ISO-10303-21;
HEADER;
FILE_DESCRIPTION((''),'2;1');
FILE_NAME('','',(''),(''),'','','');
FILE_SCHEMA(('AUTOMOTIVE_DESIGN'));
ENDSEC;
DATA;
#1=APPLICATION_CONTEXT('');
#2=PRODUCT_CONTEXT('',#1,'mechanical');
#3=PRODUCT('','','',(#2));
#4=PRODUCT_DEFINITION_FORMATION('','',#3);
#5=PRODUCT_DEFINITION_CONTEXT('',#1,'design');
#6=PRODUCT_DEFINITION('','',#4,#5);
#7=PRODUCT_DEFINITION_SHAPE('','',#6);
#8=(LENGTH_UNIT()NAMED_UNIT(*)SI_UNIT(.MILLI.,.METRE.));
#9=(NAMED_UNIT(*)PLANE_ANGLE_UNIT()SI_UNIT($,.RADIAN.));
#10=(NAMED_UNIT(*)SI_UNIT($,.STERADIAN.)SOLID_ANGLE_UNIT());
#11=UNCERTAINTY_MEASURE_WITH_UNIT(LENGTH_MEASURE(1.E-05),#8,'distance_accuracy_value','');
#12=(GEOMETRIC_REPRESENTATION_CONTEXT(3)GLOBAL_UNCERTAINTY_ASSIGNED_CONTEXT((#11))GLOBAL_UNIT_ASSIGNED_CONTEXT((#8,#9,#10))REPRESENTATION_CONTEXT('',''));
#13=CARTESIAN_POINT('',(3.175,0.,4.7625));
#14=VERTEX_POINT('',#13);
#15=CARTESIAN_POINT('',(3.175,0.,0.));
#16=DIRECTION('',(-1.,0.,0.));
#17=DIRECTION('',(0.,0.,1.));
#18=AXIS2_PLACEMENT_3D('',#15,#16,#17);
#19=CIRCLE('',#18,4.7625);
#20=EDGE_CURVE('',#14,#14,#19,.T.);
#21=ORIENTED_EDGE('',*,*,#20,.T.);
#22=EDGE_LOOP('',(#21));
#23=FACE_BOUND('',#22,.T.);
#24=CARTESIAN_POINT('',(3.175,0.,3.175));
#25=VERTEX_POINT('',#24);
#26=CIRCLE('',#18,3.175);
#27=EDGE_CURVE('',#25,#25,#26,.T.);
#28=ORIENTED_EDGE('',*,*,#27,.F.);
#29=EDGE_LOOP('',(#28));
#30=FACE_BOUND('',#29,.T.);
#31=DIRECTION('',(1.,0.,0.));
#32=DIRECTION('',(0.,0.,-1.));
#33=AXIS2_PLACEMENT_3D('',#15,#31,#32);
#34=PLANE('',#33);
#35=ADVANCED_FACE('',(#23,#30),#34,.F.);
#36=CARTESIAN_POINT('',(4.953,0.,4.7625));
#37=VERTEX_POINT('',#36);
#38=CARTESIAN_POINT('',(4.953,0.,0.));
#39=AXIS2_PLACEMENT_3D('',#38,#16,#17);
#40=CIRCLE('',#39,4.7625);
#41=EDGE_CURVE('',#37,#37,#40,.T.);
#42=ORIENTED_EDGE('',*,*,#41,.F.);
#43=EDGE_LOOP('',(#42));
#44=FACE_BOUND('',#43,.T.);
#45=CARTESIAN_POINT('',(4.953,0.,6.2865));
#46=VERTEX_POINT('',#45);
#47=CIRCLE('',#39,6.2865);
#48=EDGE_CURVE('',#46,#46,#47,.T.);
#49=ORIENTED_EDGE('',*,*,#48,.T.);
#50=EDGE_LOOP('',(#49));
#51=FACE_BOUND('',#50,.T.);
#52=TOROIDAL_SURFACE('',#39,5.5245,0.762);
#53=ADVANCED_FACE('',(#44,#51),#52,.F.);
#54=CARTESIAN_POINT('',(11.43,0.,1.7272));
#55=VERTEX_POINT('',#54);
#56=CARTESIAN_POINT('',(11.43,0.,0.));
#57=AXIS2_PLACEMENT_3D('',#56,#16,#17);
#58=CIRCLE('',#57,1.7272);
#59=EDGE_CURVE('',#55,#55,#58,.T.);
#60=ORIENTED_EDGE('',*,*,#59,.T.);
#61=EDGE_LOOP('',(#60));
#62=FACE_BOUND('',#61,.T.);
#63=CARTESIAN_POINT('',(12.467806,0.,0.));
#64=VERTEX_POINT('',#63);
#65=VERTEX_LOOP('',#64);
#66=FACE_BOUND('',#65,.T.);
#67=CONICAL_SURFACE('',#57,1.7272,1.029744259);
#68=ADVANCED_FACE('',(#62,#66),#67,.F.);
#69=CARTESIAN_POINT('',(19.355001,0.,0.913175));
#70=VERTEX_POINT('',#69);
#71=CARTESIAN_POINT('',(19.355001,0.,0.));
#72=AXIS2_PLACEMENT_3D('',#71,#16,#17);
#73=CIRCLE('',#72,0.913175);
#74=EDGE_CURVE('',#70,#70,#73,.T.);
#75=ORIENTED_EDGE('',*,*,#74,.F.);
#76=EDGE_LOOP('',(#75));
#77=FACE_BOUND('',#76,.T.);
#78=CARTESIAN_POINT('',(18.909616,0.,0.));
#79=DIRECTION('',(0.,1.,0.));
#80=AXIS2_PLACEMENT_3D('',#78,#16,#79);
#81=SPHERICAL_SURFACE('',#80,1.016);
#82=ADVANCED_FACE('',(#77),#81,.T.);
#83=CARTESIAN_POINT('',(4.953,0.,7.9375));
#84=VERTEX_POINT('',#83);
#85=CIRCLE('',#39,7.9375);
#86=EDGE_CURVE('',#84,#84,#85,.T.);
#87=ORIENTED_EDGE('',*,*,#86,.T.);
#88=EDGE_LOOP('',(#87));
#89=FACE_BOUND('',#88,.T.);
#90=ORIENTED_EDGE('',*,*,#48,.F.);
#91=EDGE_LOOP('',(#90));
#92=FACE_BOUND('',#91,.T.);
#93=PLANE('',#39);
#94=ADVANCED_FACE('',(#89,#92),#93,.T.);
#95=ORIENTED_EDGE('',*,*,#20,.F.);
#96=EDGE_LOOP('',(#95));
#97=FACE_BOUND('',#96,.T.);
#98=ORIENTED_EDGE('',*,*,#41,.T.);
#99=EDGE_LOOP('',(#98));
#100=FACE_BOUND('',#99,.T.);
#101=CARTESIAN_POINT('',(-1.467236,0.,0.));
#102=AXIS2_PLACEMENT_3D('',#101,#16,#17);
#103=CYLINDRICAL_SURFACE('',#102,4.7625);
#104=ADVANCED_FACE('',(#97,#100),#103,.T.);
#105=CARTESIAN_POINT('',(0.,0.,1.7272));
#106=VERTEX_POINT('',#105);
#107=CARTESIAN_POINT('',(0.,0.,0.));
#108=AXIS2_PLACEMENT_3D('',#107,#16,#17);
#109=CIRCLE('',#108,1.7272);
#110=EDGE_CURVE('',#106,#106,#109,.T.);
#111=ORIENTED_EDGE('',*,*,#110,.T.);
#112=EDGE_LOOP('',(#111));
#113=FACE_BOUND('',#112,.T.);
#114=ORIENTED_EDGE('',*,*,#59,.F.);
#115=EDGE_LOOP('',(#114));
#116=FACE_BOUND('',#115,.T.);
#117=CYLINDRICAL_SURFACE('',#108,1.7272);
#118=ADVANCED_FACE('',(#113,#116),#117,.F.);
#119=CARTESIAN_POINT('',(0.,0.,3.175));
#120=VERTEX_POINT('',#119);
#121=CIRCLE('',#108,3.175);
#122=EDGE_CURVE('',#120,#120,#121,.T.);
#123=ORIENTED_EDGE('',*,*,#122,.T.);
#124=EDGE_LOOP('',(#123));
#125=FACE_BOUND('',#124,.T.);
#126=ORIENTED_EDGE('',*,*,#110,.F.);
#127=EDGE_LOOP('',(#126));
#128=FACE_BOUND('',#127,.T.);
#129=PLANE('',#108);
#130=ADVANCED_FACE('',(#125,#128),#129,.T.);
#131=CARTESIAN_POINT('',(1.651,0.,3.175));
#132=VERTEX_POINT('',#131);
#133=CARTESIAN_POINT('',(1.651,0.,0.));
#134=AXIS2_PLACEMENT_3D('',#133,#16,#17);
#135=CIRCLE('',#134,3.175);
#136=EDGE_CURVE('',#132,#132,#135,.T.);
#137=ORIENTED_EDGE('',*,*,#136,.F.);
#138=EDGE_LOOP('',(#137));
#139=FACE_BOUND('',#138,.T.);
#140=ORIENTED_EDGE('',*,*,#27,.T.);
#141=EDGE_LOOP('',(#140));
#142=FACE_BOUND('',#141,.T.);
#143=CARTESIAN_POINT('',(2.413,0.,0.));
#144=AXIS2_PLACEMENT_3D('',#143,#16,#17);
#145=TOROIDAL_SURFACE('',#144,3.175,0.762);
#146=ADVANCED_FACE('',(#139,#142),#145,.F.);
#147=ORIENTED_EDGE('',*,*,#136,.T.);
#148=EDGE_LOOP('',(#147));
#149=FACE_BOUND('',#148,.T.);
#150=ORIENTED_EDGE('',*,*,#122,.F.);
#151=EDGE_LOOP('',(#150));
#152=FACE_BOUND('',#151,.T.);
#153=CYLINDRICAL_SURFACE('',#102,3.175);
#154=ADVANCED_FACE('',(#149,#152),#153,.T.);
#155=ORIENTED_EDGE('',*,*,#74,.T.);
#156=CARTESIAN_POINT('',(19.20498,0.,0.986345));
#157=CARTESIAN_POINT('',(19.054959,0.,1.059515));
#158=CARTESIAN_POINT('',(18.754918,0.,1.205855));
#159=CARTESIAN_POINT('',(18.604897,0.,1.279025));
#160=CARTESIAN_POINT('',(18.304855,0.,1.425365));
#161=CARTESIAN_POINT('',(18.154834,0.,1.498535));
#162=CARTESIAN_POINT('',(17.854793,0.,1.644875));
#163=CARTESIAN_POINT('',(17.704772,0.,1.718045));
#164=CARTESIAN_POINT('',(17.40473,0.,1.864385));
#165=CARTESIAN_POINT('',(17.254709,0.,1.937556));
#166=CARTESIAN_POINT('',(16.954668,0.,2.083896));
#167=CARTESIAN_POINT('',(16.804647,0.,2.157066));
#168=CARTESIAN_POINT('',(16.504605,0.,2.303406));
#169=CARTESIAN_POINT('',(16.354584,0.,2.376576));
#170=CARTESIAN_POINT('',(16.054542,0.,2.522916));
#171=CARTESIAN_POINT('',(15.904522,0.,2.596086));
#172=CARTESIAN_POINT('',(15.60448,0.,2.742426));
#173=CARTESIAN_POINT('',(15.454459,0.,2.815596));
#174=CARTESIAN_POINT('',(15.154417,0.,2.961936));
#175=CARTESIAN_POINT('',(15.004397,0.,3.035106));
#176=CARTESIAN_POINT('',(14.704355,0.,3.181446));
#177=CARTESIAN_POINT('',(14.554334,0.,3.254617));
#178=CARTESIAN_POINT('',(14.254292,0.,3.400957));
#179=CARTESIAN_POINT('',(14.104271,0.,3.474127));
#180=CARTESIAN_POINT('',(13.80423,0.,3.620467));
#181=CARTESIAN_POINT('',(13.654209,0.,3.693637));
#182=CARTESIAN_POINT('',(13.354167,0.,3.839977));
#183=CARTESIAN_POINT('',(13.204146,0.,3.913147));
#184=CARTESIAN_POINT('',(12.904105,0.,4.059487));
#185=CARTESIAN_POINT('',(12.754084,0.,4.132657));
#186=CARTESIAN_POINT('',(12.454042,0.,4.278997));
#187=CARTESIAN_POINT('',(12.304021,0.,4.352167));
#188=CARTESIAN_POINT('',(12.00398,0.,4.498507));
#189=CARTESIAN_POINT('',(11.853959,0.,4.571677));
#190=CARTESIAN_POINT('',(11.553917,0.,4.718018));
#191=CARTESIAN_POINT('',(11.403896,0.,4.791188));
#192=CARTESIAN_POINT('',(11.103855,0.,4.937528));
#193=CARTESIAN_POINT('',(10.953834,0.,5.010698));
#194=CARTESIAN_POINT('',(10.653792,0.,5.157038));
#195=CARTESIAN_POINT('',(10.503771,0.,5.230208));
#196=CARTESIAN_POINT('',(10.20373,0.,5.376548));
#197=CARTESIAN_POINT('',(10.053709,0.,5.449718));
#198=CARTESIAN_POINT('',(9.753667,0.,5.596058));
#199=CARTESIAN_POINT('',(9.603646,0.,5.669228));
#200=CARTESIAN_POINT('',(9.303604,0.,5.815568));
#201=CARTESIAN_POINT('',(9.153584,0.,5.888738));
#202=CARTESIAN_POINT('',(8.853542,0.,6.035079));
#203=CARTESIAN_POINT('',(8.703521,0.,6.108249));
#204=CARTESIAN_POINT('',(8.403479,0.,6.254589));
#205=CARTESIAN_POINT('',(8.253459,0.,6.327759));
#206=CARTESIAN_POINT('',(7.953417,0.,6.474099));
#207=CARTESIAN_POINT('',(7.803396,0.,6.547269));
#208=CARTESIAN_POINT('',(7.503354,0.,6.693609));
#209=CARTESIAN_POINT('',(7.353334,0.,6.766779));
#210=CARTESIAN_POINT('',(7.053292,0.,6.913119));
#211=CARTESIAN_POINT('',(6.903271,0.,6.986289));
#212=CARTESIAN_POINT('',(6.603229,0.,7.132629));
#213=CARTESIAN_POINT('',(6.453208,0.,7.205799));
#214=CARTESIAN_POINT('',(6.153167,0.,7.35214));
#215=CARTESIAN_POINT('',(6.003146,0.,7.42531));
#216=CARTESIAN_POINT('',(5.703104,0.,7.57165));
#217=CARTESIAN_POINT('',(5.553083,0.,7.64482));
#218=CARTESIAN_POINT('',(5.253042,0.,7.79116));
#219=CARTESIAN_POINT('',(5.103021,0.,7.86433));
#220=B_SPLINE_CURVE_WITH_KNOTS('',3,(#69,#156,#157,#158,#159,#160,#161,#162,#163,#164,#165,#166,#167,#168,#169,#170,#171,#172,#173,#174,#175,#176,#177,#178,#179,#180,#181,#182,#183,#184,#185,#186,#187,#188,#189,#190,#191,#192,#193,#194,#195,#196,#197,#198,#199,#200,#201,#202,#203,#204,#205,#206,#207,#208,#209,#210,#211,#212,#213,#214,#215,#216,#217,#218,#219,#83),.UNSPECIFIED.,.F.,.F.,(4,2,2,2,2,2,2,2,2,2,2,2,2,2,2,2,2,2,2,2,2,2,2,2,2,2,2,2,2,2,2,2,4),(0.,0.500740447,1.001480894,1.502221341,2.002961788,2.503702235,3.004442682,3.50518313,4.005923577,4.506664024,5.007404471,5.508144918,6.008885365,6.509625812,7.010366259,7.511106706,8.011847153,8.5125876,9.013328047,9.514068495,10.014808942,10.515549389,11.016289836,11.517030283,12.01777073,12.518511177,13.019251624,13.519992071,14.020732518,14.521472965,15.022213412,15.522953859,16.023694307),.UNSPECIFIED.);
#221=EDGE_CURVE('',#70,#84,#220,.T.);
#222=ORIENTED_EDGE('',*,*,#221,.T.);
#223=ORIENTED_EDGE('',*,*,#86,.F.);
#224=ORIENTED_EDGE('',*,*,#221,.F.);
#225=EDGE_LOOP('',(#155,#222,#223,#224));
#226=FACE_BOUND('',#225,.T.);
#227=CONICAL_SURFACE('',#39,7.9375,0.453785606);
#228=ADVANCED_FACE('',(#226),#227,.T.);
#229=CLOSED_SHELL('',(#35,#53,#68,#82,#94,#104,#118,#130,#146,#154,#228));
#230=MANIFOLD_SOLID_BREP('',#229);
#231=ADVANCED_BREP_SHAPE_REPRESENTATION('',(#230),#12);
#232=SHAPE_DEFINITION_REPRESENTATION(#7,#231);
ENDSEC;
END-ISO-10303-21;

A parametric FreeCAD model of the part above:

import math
import FreeCAD as App
import Part
import Sketcher

V = App.Vector
Q = App.Units.Quantity

doc = App.newDocument("Part")
body = doc.addObject("PartDesign::Body", "Body")

# Sketch on XY plane
sketch1 = body.newObject("Sketcher::SketchObject", "Sketch")
sketch1.AttachmentSupport = (doc.getObject("XY_Plane"), [""])
sketch1.MapMode = "FlatFace"
sketch1.addGeometry([
    Part.LineSegment(V(0, 3.2, 0), V(0, 0, 0)),  # 0
    Part.LineSegment(V(0, 0, 0), V(19.9, 0, 0)),  # 1
    Part.ArcOfCircle(Part.Circle(V(18.9, 0, 0), V(0, 0, 1), 1), math.radians(0), math.radians(64)),  # 2
    Part.LineSegment(V(19.4, 0.9, 0), V(5, 7.9, 0)),  # 3
    Part.LineSegment(V(5, 7.9, 0), V(5, 6.3, 0)),  # 4
    Part.ArcOfCircle(Part.Circle(V(5, 5.5, 0), V(0, 0, 1), 0.8), math.radians(-90), math.radians(90)),  # 5
    Part.LineSegment(V(5, 4.8, 0), V(3.2, 4.8, 0)),  # 6
    Part.LineSegment(V(3.2, 4.8, 0), V(3.2, 3.2, 0)),  # 7
    Part.ArcOfCircle(Part.Circle(V(2.4, 3.2, 0), V(0, 0, 1), 0.8), math.radians(180), math.radians(360)),  # 8
    Part.LineSegment(V(1.7, 3.2, 0), V(0, 3.2, 0)),  # 9
], False)
sketch1.addConstraint([
    Sketcher.Constraint("Coincident", 0, 2, 1, 1),
    Sketcher.Constraint("Coincident", 1, 2, 2, 1),
    Sketcher.Constraint("Tangent", 2, 2, 3, 1),
    Sketcher.Constraint("Coincident", 3, 2, 4, 1),
    Sketcher.Constraint("Coincident", 4, 2, 5, 2),
    Sketcher.Constraint("Tangent", 5, 1, 6, 1),
    Sketcher.Constraint("Coincident", 6, 2, 7, 1),
    Sketcher.Constraint("Tangent", 7, 2, 8, 2),
    Sketcher.Constraint("Coincident", 8, 1, 9, 1),
    Sketcher.Constraint("Coincident", 9, 2, 0, 1),
    Sketcher.Constraint("Vertical", 0),
    Sketcher.Constraint("Horizontal", 1),
    Sketcher.Constraint("Vertical", 4),
    Sketcher.Constraint("Horizontal", 6),
    Sketcher.Constraint("Vertical", 7),
    Sketcher.Constraint("Horizontal", 9),
    Sketcher.Constraint("Coincident", 0, 2, -1, 1),
    Sketcher.Constraint("Equal", 5, 8),
    Sketcher.Constraint("PointOnObject", 2, 3, -1),
    Sketcher.Constraint("Horizontal", 7, 2, 8, 1),
    Sketcher.Constraint("Vertical", 5, 3, 3, 2),
    Sketcher.Constraint("Equal", 9, 4),
    Sketcher.Constraint("Radius", 2, Q("0.04 in")),
    Sketcher.Constraint("Radius", 5, Q("0.03 in")),
    Sketcher.Constraint("Angle", 3, Q("154 deg")),
    Sketcher.Constraint("DistanceX", 6, 2, 6, 1, Q("0.07 in")),
    Sketcher.Constraint("DistanceX", 9, 2, 9, 1, Q("0.065 in")),
    Sketcher.Constraint("DistanceY", 0, 2, 0, 1, Q("0.125 in")),
    Sketcher.Constraint("DistanceY", 7, 2, 7, 1, Q("0.0625 in")),
])
revolution = body.newObject("PartDesign::Revolution", "Revolution")
revolution.Profile = sketch1
revolution.ReferenceAxis = (sketch1, ["H_Axis"])
revolution.Angle = 360

# Sketch on YZ plane
sketch2 = body.newObject("Sketcher::SketchObject", "Sketch001")
sketch2.AttachmentSupport = (doc.getObject("YZ_Plane"), [""])
sketch2.MapMode = "FlatFace"
sketch2.addGeometry(Part.Circle(V(0, 0, 0), V(0, 0, 1), 1.7), False)
sketch2.addConstraint([
    Sketcher.Constraint("Coincident", 0, 3, -1, 1),
    Sketcher.Constraint("Diameter", 0, Q("0.136 in")),
])
doc.recompute()
hole = body.newObject("PartDesign::Hole", "Hole")
hole.Profile = sketch2
hole.ThreadType = "None"
hole.Diameter = Q("0.136 in")
hole.DepthType = "Dimension"
hole.Depth = Q("0.45 in")
hole.DrillPoint = "Angled"
hole.DrillPointAngle = 118
hole.Reversed = True

doc.recompute()
